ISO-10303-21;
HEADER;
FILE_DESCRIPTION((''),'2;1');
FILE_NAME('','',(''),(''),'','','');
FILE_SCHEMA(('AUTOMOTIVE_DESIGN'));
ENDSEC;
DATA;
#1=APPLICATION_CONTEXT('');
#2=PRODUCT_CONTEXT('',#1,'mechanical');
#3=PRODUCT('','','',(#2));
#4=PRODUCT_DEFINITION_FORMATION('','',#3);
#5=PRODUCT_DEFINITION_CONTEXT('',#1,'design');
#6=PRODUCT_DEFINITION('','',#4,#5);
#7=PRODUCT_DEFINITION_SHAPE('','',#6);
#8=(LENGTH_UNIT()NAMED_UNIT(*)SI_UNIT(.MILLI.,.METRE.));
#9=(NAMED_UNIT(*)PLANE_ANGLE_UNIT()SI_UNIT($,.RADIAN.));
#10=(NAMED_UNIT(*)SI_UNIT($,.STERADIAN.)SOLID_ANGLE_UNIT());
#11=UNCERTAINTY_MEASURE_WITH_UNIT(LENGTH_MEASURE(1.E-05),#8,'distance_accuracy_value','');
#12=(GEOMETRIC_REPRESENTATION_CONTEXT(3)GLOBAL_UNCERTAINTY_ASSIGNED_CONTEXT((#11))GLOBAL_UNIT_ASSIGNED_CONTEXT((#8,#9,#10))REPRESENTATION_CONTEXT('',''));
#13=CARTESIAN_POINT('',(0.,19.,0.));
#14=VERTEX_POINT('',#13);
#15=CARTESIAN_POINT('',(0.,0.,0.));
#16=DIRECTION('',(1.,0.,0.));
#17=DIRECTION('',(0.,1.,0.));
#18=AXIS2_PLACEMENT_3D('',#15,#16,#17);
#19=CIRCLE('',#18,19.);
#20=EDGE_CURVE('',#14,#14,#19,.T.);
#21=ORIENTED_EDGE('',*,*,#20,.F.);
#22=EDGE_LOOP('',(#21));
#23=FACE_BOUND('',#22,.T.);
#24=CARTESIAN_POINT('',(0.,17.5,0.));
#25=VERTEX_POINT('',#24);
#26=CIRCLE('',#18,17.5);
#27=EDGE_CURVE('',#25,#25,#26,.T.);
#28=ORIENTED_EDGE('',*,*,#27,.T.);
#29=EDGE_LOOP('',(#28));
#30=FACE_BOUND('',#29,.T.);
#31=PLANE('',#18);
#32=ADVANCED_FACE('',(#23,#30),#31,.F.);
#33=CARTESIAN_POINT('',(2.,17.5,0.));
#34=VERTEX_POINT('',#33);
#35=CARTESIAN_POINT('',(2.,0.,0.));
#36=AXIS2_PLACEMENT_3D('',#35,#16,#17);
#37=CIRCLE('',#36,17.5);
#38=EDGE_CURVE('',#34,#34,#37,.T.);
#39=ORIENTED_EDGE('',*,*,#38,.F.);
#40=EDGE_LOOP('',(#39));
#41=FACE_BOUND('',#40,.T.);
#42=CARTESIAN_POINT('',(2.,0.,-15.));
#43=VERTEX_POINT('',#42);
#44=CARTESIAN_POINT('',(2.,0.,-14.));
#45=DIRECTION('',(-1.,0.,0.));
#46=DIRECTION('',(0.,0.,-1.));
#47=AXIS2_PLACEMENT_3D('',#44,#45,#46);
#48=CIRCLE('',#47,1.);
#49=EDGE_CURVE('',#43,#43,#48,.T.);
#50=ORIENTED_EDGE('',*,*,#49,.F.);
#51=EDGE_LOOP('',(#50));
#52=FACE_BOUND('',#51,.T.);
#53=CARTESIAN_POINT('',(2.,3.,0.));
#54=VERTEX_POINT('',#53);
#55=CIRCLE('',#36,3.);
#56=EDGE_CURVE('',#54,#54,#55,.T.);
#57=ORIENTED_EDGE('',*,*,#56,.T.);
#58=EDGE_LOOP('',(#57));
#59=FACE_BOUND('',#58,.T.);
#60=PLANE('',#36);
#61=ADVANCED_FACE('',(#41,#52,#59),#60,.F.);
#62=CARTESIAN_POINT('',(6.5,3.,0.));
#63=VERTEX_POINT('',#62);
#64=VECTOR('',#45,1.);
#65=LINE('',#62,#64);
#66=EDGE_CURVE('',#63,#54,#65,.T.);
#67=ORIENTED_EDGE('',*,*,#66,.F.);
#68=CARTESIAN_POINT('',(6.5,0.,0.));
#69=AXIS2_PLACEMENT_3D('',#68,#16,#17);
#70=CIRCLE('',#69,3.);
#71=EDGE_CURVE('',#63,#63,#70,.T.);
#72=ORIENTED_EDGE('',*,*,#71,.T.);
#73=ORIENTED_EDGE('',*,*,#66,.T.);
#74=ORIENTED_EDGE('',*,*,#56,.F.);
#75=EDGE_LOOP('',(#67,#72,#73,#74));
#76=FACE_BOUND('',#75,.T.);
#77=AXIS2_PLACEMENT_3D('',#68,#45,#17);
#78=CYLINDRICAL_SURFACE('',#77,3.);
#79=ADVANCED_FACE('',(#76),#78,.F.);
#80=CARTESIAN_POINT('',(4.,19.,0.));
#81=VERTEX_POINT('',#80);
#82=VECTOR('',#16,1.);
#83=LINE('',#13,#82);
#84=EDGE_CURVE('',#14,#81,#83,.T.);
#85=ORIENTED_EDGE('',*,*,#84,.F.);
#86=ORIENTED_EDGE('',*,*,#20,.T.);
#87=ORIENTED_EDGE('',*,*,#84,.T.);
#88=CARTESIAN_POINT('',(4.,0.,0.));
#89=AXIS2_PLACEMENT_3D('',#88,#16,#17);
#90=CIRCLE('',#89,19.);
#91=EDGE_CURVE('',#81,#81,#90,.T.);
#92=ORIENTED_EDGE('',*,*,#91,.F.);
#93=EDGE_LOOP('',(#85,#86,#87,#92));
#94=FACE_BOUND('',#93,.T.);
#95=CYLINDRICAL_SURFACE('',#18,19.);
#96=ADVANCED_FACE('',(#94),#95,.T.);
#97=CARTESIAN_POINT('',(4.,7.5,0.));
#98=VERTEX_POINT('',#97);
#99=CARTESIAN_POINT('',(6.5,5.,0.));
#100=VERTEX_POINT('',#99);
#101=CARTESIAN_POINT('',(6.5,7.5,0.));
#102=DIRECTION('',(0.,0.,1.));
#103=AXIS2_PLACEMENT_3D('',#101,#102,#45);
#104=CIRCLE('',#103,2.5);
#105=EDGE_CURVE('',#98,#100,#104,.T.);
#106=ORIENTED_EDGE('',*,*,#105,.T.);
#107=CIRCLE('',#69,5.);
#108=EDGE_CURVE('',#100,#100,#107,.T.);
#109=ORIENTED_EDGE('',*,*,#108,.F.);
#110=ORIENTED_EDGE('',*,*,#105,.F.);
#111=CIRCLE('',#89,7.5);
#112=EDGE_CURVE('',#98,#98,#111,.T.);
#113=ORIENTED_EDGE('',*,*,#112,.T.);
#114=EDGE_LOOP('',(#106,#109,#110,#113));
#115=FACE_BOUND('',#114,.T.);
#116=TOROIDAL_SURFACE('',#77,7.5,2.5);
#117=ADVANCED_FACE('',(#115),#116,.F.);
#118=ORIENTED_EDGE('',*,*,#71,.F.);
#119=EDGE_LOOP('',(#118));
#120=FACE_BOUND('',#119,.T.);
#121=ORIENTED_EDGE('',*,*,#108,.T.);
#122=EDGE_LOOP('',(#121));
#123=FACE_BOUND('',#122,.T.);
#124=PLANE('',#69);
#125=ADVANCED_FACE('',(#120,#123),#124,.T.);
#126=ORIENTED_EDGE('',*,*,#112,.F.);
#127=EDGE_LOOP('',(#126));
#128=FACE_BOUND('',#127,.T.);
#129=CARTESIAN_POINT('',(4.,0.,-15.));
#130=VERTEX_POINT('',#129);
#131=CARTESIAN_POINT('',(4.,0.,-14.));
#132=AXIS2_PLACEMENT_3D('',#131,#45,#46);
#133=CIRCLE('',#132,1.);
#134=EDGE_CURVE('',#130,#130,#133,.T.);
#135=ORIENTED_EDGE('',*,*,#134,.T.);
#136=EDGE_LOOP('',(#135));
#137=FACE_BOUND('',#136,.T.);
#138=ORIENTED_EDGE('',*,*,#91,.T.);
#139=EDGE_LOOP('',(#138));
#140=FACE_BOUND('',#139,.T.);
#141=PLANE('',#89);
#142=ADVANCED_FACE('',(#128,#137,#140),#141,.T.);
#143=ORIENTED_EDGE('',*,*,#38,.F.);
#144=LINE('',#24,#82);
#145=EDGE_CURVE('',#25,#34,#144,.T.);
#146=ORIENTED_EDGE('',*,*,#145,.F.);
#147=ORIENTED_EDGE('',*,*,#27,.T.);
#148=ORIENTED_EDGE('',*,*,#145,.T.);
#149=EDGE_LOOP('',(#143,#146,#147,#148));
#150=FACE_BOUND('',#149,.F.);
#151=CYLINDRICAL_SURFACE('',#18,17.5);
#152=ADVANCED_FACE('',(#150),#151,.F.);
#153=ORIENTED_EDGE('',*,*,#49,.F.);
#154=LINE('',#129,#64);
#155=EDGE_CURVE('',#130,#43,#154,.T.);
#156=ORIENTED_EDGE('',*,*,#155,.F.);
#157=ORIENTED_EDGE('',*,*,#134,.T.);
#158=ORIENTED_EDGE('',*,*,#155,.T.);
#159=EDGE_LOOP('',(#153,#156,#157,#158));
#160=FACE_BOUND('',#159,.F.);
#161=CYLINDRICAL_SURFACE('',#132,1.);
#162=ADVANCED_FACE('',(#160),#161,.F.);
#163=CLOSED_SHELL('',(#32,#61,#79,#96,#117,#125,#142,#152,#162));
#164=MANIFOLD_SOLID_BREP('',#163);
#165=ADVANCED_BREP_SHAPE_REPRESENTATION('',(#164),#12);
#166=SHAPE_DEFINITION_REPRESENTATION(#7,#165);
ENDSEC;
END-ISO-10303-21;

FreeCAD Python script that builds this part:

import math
import FreeCAD as App
import Part
import Sketcher

V = App.Vector

doc = App.newDocument("Part")
body = doc.addObject("PartDesign::Body", "Body")

# Sketch on XY plane
sketch1 = body.newObject("Sketcher::SketchObject", "Sketch")
sketch1.AttachmentSupport = (doc.getObject("XY_Plane"), [""])
sketch1.MapMode = "FlatFace"
sketch1.addGeometry([
    Part.LineSegment(V(0, 19, 0), V(0, 17.5, 0)),  # 0
    Part.LineSegment(V(0, 17.5, 0), V(2, 17.5, 0)),  # 1
    Part.LineSegment(V(2, 17.5, 0), V(2, 3, 0)),  # 2
    Part.LineSegment(V(2, 3, 0), V(6.5, 3, 0)),  # 3
    Part.LineSegment(V(6.5, 3, 0), V(6.5, 5, 0)),  # 4
    Part.ArcOfCircle(Part.Circle(V(6.5, 7.5, 0), V(0, 0, 1), 2.5), math.radians(180), math.radians(270)),  # 5
    Part.LineSegment(V(4, 7.5, 0), V(4, 19, 0)),  # 6
    Part.LineSegment(V(4, 19, 0), V(0, 19, 0)),  # 7
], False)
sketch1.addConstraint([
    Sketcher.Constraint("Coincident", 0, 2, 1, 1),
    Sketcher.Constraint("Coincident", 1, 2, 2, 1),
    Sketcher.Constraint("Coincident", 2, 2, 3, 1),
    Sketcher.Constraint("Coincident", 3, 2, 4, 1),
    Sketcher.Constraint("Coincident", 4, 2, 5, 2),
    Sketcher.Constraint("Tangent", 5, 1, 6, 1),
    Sketcher.Constraint("Coincident", 6, 2, 7, 1),
    Sketcher.Constraint("Coincident", 7, 2, 0, 1),
    Sketcher.Constraint("Vertical", 0),
    Sketcher.Constraint("Horizontal", 1),
    Sketcher.Constraint("Vertical", 2),
    Sketcher.Constraint("Horizontal", 3),
    Sketcher.Constraint("Vertical", 4),
    Sketcher.Constraint("Vertical", 6),
    Sketcher.Constraint("Horizontal", 7),
    Sketcher.Constraint("PointOnObject", 0, 2, -2),
    Sketcher.Constraint("Vertical", 5, 3, 3, 2),
    Sketcher.Constraint("Equal", 1, 4),
    Sketcher.Constraint("Radius", 5, 2.5),
    Sketcher.Constraint("DistanceX", 1, 1, 1, 2, 2.0),
    Sketcher.Constraint("DistanceX", 7, 2, 7, 1, 4.0),
    Sketcher.Constraint("DistanceY", 5, 3, 0, 2, 10.0),
    Sketcher.Constraint("DistanceY", 0, 2, 0, 1, 1.5),
    Sketcher.Constraint("DistanceY", -1, 1, 2, 2, 3.0),
])
revolution = body.newObject("PartDesign::Revolution", "Revolution")
revolution.Profile = sketch1
revolution.ReferenceAxis = (sketch1, ["H_Axis"])
revolution.Angle = 360

# Sketch on YZ plane
sketch2 = body.newObject("Sketcher::SketchObject", "Sketch001")
sketch2.AttachmentSupport = (doc.getObject("YZ_Plane"), [""])
sketch2.MapMode = "FlatFace"
sketch2.AttachmentOffset = App.Placement(V(0, 0, 4), App.Rotation())
sketch2.addGeometry(Part.Circle(V(0, -14, 0), V(0, 0, 1), 1), False)
sketch2.addConstraint([
    Sketcher.Constraint("PointOnObject", 0, 3, -2),
    Sketcher.Constraint("Diameter", 0, 2.0),
    Sketcher.Constraint("DistanceY", 0, 3, -1, 1, 14.0),
])
doc.recompute()
hole = body.newObject("PartDesign::Hole", "Hole")
hole.Profile = sketch2
hole.ThreadType = "None"
hole.Diameter = 2
hole.DepthType = "ThroughAll"

doc.recompute()
